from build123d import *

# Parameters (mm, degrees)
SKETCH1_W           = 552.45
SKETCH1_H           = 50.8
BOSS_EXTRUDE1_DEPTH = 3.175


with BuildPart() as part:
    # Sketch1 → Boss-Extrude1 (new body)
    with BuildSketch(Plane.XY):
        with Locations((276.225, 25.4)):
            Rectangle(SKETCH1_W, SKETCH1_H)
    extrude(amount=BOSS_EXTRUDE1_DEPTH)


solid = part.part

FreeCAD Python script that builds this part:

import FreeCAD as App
import Part
import Sketcher

V = App.Vector
Q = App.Units.Quantity


def add_polygon(sketch, points):
    """Adds a closed chain of lines whose ends are joined by coincident constraints."""
    first, n = sketch.GeometryCount, len(points)
    for a, b in zip(points, points[1:] + points[:1]):
        sketch.addGeometry(Part.LineSegment(App.Vector(*a, 0), App.Vector(*b, 0)), False)
    for i in range(n):
        sketch.addConstraint(Sketcher.Constraint("Coincident", first + i, 2, first + (i + 1) % n, 1))

doc = App.newDocument("Part")
params = doc.addObject("Spreadsheet::Sheet", "Params")
for row, (alias, value) in enumerate([
    ("sketch1_height", "2 in"),
    ("sketch1_width", "21.75 in"),
    ("pad1_length", "0.125 in"),
], start=1):
    params.set(f"A{row}", alias)
    params.set(f"B{row}", "=" + value)
    params.setAlias(f"B{row}", alias)

body = doc.addObject("PartDesign::Body", "Body")

# Sketch on XY plane
sketch1 = doc.addObject("Sketcher::SketchObject", "Sketch")
body.addObject(sketch1)
sketch1.AttachmentSupport = (doc.XY_Plane, [""])
sketch1.MapMode = "FlatFace"
add_polygon(sketch1, [(0, 50.8), (0, 0), (552.45, 0), (552.45, 50.8)])  # lines 0-3
sketch1.addConstraint(Sketcher.Constraint("Vertical", 0))
sketch1.addConstraint(Sketcher.Constraint("Horizontal", 1))
sketch1.addConstraint(Sketcher.Constraint("Vertical", 2))
sketch1.addConstraint(Sketcher.Constraint("Horizontal", 3))
sketch1.addConstraint(Sketcher.Constraint("Coincident", 0, 2, -1, 1))
sketch1.addConstraint(Sketcher.Constraint("DistanceY", 0, 2, 0, 1, Q("2 in")))
sketch1.addConstraint(Sketcher.Constraint("DistanceX", 1, 1, 1, 2, Q("21.75 in")))
sketch1.setExpression("Constraints[9]", "Params.sketch1_height")
sketch1.setExpression("Constraints[10]", "Params.sketch1_width")
pad1 = doc.addObject("PartDesign::Pad", "Pad")
body.addObject(pad1)
pad1.Profile = sketch1
pad1.setExpression("Length", "Params.pad1_length")

doc.recompute()
